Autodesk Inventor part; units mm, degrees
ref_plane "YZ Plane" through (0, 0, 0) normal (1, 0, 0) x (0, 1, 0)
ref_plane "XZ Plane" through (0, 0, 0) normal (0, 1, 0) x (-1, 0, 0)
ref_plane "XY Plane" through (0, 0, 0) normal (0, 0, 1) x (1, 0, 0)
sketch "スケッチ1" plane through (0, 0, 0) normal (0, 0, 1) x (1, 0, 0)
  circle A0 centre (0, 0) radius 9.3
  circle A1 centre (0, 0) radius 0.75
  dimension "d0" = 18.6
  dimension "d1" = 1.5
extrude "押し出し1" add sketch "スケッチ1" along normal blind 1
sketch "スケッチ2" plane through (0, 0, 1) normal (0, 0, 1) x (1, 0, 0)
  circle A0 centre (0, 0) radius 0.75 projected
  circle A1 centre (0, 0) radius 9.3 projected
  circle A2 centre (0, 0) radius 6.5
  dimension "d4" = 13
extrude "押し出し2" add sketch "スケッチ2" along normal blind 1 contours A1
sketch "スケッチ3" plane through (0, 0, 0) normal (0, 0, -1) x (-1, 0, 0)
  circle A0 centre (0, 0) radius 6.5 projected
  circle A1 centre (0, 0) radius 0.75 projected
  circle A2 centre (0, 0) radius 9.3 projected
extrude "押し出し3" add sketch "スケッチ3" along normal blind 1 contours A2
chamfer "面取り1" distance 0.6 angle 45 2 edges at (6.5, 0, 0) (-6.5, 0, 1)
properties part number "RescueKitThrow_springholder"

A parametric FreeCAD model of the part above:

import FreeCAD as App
import Part
import Sketcher
from FreeCAD import Vector
Q = App.Units.Quantity


def edges_at(feature, points):
    """Names of the edges that pass closest to the given points."""
    edges = feature.Shape.Edges
    near = lambda p: min(range(len(edges)), key=lambda i: edges[i].distToShape(Part.Vertex(*p))[0])
    return sorted({f"Edge{near(p) + 1}" for p in points})

doc = App.newDocument("Part")
body = doc.addObject("PartDesign::Body", "Body")

# Sketch on XY plane
sketch1 = doc.addObject("Sketcher::SketchObject", "Sketch")
body.addObject(sketch1)
sketch1.AttachmentSupport = (doc.XY_Plane, [""])
sketch1.MapMode = "FlatFace"
sketch1.addGeometry([
    Part.Circle(Vector(0, 0, 0), Vector(0, 0, 1), 9.3),
    Part.Circle(Vector(0, 0, 0), Vector(0, 0, 1), 0.8),
], False)
sketch1.addConstraint([
    Sketcher.Constraint("Coincident", 0, 3, -1, 1),
    Sketcher.Constraint("Coincident", 1, 3, -1, 1),
    Sketcher.Constraint("Diameter", 0, Q("18.6 mm")),
    Sketcher.Constraint("Diameter", 1, Q("1.5 mm")),
])
pad1 = doc.addObject("PartDesign::Pad", "Pad")
body.addObject(pad1)
pad1.Profile = sketch1
pad1.Length = 1

# Sketch on XY plane
sketch2 = doc.addObject("Sketcher::SketchObject", "Sketch001")
body.addObject(sketch2)
sketch2.AttachmentSupport = (doc.XY_Plane, [""])
sketch2.MapMode = "FlatFace"
sketch2.AttachmentOffset = App.Placement(Vector(0, 0, 1), App.Rotation())
sketch2.addGeometry([
    Part.Circle(Vector(0, 0, 0), Vector(0, 0, 1), 9),
    Part.Circle(Vector(0, 0, 0), Vector(0, 0, 1), 6),
], False)
sketch2.addConstraint([
    Sketcher.Constraint("Coincident", 0, 3, -1, 1),
    Sketcher.Constraint("Coincident", 1, 3, -1, 1),
    Sketcher.Constraint("Diameter", 1, Q("13 mm")),
    Sketcher.Constraint("Diameter", 0, Q("18.6 mm")),
])
pad2 = doc.addObject("PartDesign::Pad", "Pad001")
body.addObject(pad2)
pad2.Profile = sketch2
pad2.Length = 1

# Sketch on XY plane
sketch3 = doc.addObject("Sketcher::SketchObject", "Sketch002")
body.addObject(sketch3)
sketch3.AttachmentSupport = (doc.XY_Plane, [""])
sketch3.MapMode = "FlatFace"
sketch3.addGeometry([
    Part.Circle(Vector(0, 0, 0), Vector(0, 0, 1), 9),
    Part.Circle(Vector(0, 0, 0), Vector(0, 0, 1), 6),
], False)
sketch3.addConstraint([
    Sketcher.Constraint("Coincident", 0, 3, -1, 1),
    Sketcher.Constraint("Coincident", 1, 3, -1, 1),
    Sketcher.Constraint("Diameter", 1, Q("13 mm")),
    Sketcher.Constraint("Diameter", 0, Q("18.6 mm")),
])
pad3 = doc.addObject("PartDesign::Pad", "Pad002")
body.addObject(pad3)
pad3.Profile = sketch3
pad3.Length = 1
pad3.Reversed = True
doc.recompute()

chamfer = doc.addObject("PartDesign::Chamfer", "Chamfer")
body.addObject(chamfer)
chamfer.Base = (pad3, edges_at(pad3, [(6.5, 0, 0), (-6.5, 0, 1)]))
chamfer.Size = 0.6

doc.recompute()
